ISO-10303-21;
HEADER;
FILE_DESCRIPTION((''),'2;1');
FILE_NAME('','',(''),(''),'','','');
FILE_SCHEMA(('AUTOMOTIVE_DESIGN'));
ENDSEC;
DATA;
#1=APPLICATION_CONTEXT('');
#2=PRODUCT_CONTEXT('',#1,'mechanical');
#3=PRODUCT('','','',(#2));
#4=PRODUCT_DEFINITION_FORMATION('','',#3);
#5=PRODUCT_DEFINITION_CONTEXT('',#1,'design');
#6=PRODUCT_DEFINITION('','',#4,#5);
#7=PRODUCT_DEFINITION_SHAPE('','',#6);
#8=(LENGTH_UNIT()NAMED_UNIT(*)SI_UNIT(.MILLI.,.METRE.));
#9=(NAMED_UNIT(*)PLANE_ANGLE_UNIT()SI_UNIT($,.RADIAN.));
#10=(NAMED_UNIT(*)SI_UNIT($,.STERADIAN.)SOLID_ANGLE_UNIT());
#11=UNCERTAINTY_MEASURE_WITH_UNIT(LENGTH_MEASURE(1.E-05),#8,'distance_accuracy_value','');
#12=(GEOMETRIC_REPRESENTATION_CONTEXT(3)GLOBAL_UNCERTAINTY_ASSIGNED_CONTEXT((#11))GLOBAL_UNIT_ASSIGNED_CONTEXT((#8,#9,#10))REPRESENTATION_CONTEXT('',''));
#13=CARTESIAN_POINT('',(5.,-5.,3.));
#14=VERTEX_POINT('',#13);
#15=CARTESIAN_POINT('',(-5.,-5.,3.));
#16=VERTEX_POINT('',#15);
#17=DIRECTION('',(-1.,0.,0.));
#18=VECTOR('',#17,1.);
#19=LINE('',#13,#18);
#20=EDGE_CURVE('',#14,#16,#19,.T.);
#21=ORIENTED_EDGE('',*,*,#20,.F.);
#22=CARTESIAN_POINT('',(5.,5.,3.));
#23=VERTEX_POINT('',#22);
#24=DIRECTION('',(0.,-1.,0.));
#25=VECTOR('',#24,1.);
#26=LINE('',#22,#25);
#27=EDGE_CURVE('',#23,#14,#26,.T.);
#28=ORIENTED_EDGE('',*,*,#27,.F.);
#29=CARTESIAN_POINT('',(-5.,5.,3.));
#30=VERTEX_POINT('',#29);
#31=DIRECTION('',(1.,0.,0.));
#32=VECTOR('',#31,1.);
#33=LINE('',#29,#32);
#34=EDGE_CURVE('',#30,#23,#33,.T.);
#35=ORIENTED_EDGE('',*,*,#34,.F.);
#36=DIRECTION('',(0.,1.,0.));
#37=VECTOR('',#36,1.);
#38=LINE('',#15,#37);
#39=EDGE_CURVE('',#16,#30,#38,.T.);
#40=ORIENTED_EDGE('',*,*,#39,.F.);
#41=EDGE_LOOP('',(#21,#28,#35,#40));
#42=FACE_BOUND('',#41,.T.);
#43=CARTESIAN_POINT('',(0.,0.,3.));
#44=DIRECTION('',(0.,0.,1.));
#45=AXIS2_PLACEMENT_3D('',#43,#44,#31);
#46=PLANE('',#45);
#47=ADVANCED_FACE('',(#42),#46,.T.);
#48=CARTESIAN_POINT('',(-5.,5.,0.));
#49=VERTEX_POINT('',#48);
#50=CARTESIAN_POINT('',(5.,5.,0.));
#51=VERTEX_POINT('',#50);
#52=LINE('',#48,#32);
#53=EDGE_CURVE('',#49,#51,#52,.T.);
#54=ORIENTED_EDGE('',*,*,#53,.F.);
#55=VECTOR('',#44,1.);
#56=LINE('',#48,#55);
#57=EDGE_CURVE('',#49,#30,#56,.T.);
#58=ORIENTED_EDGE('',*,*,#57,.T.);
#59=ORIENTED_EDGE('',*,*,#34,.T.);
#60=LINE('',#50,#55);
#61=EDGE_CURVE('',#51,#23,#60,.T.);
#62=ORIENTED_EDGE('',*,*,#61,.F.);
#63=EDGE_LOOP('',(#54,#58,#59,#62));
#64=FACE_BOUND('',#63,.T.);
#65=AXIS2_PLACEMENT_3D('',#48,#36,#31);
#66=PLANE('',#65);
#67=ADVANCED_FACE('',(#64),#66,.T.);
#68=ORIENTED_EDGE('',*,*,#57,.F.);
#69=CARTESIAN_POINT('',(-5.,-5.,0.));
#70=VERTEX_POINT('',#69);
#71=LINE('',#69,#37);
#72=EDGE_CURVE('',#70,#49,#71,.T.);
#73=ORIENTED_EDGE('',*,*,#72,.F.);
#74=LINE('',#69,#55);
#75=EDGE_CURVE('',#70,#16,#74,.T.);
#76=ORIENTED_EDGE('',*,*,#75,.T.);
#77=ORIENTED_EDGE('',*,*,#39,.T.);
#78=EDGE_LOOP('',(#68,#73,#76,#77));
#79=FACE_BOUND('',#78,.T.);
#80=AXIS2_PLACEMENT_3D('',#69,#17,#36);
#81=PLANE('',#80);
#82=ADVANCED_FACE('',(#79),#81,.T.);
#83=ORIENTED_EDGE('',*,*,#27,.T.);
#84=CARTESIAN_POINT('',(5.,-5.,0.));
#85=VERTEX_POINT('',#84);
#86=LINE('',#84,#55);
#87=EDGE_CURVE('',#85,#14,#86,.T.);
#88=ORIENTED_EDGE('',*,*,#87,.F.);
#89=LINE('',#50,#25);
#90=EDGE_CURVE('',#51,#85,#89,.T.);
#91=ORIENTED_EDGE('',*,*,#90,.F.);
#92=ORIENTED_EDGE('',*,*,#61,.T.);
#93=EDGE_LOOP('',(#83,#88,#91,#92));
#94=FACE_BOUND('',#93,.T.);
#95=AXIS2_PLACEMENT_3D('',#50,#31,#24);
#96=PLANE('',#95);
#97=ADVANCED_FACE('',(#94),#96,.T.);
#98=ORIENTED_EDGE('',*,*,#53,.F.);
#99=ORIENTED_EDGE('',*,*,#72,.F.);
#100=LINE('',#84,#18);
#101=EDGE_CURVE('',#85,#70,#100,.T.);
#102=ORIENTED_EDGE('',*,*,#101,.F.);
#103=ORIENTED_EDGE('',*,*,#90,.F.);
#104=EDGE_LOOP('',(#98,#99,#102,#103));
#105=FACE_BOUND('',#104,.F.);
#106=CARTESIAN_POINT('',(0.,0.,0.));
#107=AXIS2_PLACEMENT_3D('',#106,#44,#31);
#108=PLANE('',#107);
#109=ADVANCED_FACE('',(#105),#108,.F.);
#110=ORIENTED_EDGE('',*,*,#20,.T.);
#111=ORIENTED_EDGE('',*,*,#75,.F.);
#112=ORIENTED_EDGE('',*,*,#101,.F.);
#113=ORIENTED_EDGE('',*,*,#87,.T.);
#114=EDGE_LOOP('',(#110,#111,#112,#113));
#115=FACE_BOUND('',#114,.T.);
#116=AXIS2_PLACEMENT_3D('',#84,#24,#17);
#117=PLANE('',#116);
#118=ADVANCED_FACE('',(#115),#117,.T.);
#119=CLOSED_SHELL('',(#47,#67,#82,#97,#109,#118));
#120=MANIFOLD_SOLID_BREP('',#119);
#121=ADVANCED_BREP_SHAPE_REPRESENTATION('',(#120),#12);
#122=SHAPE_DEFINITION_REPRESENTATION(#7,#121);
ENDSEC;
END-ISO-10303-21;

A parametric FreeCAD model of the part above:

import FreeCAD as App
import Part
import Sketcher

V = App.Vector

doc = App.newDocument("Part")
body = doc.addObject("PartDesign::Body", "Body")

sketch1 = doc.addObject("Sketcher::SketchObject", "Sketch")
body.addObject(sketch1)
sketch1.AttachmentSupport = (doc.XY_Plane, [""])
sketch1.MapMode = "FlatFace"
sketch1.addGeometry(Part.LineSegment(V(5, 5, 0), V(-5, 5, 0)), False)
sketch1.addGeometry(Part.LineSegment(V(-5, 5, 0), V(-5, -5, 0)), False)
sketch1.addGeometry(Part.LineSegment(V(-5, -5, 0), V(5, -5, 0)), False)
sketch1.addGeometry(Part.LineSegment(V(5, -5, 0), V(5, 5, 0)), False)
sketch1.addConstraint(Sketcher.Constraint("Coincident", 0, 2, 1, 1))
sketch1.addConstraint(Sketcher.Constraint("Coincident", 1, 2, 2, 1))
sketch1.addConstraint(Sketcher.Constraint("Coincident", 2, 2, 3, 1))
sketch1.addConstraint(Sketcher.Constraint("Coincident", 3, 2, 0, 1))
sketch1.addConstraint(Sketcher.Constraint("Horizontal", 0))
sketch1.addConstraint(Sketcher.Constraint("Vertical", 1))
sketch1.addConstraint(Sketcher.Constraint("Horizontal", 2))
sketch1.addConstraint(Sketcher.Constraint("Vertical", 3))
sketch1.addConstraint(Sketcher.Constraint("Symmetric", 0, 2, 2, 2, -1, 1))
sketch1.addConstraint(Sketcher.Constraint("Equal", 2, 1))
sketch1.addConstraint(Sketcher.Constraint("DistanceX", 0, 2, 0, 1, 10.0))
pad1 = doc.addObject("PartDesign::Pad", "Pad")
body.addObject(pad1)
pad1.Profile = sketch1
pad1.Length = 3

doc.recompute()
